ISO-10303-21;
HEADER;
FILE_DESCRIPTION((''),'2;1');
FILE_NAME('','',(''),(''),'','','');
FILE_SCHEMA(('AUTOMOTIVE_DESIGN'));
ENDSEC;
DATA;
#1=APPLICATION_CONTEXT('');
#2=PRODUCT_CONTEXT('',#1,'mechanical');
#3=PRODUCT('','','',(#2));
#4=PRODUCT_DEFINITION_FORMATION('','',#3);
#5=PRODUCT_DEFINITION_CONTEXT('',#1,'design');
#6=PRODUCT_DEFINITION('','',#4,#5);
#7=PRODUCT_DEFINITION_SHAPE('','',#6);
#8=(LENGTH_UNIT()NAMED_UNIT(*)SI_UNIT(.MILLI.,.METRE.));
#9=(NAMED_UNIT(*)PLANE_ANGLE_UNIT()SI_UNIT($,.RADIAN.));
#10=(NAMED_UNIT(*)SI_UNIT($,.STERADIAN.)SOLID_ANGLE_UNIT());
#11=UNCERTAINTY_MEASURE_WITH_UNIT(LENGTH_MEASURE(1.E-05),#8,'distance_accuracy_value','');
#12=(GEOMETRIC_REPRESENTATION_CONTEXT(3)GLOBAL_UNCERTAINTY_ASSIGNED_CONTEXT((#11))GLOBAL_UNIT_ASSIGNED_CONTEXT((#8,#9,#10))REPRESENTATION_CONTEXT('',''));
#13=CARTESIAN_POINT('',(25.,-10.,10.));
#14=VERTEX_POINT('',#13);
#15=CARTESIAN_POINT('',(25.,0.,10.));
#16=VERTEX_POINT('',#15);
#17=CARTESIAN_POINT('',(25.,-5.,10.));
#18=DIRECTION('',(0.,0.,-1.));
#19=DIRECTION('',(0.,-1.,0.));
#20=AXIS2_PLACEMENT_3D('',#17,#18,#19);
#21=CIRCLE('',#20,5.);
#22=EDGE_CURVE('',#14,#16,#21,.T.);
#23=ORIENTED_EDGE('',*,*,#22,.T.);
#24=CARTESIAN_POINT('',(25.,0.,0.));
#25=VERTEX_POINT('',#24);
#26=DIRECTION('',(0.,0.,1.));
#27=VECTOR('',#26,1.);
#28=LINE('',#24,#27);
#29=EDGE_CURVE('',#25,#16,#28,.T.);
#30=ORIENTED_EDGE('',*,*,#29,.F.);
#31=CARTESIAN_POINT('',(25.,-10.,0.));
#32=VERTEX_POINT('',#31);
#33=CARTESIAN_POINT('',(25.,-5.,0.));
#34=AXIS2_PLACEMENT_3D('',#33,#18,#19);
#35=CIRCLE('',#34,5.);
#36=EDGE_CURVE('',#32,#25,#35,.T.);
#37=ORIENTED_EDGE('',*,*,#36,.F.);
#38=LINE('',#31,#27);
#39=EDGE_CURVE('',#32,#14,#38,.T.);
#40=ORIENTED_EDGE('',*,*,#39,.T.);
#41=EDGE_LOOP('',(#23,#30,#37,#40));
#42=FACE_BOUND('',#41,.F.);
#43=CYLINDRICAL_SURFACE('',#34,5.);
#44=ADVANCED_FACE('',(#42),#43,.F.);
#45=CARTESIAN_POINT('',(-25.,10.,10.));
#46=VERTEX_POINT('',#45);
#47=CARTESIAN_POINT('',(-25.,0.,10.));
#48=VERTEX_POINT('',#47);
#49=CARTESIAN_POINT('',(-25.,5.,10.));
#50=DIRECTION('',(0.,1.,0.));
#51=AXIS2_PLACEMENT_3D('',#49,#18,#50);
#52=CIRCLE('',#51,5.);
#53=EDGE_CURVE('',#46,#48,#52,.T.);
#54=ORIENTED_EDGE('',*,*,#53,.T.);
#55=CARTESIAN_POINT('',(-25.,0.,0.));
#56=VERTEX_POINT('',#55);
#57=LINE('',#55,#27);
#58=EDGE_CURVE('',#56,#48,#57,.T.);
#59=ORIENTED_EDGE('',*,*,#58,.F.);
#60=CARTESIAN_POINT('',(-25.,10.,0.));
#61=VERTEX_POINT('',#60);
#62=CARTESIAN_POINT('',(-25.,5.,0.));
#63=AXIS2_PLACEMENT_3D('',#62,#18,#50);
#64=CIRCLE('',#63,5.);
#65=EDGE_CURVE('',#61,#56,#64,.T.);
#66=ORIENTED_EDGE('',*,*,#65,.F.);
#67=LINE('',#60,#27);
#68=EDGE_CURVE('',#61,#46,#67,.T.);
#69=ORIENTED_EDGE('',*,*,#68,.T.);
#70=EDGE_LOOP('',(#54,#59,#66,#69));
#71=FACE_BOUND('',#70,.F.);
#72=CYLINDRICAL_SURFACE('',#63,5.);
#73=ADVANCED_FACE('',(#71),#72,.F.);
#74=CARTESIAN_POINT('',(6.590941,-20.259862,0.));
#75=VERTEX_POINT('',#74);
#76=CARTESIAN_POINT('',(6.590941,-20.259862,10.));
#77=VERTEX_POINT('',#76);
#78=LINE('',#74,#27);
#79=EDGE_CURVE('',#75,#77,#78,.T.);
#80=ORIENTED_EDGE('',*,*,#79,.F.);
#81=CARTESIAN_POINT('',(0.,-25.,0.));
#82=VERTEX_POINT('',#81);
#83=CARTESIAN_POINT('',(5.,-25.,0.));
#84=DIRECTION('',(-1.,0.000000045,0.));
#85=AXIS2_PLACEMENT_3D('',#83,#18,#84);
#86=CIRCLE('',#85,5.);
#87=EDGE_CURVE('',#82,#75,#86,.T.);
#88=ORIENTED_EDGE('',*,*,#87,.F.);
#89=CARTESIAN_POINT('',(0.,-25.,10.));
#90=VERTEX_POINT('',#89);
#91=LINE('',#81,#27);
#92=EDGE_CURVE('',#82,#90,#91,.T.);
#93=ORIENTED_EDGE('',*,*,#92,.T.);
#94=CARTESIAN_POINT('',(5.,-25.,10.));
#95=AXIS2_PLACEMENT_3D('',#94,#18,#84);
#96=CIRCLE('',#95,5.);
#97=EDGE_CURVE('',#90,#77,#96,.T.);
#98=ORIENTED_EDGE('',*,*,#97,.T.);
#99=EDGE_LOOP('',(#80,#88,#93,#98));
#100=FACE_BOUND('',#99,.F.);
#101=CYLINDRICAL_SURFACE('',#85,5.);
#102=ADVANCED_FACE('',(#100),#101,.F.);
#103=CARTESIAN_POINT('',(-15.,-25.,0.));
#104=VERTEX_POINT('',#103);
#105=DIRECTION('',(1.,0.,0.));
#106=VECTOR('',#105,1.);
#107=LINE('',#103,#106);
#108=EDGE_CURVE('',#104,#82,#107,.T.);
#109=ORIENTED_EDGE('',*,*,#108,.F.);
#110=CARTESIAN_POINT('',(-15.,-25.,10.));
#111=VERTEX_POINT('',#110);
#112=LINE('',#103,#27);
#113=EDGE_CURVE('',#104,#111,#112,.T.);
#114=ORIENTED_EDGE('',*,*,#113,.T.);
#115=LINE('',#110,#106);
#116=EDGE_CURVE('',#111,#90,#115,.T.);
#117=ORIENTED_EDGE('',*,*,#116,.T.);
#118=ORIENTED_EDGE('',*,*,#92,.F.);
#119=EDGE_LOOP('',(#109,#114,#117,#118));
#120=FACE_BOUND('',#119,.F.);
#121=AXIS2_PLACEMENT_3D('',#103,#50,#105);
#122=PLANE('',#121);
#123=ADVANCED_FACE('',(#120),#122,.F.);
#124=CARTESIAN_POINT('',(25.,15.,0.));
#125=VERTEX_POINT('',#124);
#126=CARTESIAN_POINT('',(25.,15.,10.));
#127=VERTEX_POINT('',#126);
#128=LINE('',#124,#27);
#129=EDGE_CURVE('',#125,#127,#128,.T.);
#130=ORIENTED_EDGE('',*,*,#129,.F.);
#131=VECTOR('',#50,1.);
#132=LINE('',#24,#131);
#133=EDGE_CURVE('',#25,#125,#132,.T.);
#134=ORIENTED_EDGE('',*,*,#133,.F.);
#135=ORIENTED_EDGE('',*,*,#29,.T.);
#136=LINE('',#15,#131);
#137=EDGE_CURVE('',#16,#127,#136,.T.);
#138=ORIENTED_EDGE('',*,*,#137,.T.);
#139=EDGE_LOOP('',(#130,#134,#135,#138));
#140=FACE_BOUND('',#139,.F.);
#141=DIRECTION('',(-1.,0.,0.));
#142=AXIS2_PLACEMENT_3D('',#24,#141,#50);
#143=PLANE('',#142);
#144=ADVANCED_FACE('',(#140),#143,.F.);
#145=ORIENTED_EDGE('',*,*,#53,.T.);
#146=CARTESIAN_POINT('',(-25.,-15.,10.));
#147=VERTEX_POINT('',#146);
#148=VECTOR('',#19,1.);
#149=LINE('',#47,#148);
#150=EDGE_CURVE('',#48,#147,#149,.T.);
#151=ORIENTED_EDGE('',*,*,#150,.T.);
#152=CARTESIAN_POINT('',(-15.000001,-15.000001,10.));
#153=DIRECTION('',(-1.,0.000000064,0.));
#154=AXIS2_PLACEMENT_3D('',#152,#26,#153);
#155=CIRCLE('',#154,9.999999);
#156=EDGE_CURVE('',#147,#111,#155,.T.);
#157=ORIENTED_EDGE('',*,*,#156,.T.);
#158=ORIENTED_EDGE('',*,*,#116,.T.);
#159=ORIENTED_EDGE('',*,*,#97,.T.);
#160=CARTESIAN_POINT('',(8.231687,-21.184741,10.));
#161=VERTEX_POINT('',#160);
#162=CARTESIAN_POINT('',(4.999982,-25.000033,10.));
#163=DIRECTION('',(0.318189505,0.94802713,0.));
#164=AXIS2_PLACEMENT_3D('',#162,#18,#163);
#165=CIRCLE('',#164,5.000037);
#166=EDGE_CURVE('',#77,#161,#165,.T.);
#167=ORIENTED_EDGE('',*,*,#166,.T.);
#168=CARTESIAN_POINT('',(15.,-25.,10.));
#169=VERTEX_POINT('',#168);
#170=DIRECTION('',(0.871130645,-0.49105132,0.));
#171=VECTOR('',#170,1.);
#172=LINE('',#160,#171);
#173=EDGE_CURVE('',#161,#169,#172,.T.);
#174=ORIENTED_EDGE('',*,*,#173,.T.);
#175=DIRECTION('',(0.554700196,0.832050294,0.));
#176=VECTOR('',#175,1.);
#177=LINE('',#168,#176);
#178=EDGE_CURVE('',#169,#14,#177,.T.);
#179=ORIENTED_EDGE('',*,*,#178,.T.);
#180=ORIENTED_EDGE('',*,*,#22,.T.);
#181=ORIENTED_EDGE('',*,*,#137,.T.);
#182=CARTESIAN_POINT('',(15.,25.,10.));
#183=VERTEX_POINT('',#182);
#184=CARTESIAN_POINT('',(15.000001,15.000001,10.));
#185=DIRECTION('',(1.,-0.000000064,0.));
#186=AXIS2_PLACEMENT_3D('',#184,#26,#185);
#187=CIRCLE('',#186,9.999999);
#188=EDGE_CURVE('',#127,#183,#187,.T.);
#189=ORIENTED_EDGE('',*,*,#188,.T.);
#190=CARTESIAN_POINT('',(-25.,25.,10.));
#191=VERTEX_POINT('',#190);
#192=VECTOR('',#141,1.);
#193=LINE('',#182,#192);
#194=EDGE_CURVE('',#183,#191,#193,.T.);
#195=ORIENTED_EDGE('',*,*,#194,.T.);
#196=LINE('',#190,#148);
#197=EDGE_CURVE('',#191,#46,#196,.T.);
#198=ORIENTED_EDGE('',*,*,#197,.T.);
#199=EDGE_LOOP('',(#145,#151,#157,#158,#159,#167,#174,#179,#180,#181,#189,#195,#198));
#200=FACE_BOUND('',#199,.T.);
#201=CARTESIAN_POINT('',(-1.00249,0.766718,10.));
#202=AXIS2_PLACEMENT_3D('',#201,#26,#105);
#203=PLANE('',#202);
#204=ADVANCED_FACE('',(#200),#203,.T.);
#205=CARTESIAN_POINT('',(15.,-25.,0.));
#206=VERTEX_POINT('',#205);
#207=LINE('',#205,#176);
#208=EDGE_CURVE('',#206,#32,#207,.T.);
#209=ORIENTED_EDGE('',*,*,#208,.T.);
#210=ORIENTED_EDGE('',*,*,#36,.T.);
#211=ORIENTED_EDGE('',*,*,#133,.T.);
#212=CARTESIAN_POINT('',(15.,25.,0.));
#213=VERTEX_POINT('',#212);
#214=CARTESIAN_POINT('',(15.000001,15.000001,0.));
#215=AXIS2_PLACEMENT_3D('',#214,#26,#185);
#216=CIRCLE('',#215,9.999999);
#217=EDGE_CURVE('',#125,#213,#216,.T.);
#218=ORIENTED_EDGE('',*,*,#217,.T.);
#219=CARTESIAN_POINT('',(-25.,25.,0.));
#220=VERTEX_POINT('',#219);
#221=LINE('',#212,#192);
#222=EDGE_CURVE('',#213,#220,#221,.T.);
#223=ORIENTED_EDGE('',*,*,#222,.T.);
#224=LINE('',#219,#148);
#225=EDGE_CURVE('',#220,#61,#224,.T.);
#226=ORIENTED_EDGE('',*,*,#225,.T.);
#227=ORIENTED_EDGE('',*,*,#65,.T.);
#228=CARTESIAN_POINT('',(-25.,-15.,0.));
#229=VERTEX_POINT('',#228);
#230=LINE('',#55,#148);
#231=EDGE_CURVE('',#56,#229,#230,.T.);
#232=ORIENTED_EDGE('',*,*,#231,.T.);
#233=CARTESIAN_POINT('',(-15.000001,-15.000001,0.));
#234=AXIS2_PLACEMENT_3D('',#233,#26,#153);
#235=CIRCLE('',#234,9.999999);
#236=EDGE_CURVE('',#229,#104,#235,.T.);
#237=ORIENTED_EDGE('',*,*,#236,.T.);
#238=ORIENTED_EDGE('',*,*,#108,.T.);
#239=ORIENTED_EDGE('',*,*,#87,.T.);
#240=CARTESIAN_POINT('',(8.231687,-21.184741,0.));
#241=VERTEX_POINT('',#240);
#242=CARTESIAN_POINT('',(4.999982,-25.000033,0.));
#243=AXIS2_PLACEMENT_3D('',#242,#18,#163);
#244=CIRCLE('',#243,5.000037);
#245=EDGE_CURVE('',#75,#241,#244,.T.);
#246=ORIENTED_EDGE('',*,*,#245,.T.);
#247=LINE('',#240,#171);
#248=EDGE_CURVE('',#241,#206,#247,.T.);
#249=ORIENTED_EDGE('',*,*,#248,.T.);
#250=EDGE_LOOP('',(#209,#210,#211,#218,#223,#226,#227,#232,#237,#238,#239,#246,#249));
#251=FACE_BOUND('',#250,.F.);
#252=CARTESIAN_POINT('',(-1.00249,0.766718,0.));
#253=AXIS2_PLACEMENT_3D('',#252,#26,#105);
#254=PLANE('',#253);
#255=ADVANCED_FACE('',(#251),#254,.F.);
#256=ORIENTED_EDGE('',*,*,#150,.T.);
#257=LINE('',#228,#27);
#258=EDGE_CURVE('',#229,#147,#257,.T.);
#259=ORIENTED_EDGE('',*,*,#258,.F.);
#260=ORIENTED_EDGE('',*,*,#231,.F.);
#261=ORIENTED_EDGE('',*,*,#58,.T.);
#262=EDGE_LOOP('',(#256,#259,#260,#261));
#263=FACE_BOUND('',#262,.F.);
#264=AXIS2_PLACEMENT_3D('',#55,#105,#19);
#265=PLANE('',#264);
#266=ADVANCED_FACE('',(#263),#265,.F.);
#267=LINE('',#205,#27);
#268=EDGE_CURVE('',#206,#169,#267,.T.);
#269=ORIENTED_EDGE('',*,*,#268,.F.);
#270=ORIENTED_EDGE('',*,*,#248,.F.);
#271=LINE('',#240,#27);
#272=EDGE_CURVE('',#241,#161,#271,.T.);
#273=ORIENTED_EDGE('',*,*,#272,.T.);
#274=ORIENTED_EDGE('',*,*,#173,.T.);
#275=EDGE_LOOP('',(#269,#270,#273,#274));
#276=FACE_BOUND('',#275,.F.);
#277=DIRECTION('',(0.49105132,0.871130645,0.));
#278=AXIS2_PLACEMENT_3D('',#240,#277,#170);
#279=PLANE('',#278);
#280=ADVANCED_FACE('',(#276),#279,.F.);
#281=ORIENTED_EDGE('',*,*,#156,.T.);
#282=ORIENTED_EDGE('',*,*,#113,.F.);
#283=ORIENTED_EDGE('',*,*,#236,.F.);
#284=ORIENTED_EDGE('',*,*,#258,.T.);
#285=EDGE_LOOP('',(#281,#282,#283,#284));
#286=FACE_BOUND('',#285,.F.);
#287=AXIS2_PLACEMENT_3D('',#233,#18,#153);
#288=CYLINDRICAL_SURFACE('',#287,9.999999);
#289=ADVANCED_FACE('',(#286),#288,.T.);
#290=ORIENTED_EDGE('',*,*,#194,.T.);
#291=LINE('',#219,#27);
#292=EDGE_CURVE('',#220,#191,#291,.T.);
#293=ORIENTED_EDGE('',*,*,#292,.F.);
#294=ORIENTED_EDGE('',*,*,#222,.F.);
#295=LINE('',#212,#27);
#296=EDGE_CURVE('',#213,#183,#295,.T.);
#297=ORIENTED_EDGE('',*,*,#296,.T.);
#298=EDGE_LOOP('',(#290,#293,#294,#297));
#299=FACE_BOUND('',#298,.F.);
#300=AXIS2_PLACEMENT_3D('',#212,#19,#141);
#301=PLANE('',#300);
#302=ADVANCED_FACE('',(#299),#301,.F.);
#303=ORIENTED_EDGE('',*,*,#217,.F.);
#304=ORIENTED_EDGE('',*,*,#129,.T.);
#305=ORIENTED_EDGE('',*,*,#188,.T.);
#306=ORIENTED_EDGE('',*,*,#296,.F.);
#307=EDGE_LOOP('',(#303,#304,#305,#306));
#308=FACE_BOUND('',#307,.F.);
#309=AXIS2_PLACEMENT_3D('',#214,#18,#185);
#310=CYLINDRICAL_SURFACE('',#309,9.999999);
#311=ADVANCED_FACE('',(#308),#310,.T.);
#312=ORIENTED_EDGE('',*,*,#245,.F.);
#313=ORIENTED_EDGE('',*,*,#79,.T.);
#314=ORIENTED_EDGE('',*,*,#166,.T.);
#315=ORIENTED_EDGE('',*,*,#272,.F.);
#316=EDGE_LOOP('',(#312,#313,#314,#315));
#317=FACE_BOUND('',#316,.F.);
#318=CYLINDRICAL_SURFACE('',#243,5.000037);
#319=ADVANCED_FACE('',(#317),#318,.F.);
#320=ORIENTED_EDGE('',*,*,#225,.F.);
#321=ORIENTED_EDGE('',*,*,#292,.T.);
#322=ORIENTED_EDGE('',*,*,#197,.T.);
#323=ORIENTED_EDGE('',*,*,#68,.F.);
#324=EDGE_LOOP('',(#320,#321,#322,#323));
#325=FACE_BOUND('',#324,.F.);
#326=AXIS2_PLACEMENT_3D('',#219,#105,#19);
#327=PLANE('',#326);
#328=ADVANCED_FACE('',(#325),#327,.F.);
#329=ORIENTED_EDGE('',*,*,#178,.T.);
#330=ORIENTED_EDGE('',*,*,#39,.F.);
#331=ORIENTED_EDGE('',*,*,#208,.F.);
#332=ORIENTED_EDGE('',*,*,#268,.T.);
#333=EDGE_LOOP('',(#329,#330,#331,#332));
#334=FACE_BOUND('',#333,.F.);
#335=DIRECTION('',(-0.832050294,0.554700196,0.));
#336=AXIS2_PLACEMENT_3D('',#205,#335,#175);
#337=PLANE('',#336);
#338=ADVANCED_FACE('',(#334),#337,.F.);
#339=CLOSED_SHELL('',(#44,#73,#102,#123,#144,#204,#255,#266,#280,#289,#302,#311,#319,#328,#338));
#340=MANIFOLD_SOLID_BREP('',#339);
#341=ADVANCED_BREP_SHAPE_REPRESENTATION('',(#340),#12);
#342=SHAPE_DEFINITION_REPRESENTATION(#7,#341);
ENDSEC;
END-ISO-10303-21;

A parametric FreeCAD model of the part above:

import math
import FreeCAD as App
import Part
import Sketcher
Q = App.Units.Quantity

doc = App.newDocument("Part")
body = doc.addObject("PartDesign::Body", "Body")

sketch1 = doc.addObject("Sketcher::SketchObject", "Sketch")
body.addObject(sketch1)
sketch1.AttachmentSupport = (doc.XY_Plane, [""])
sketch1.MapMode = "FlatFace"
sketch1.addGeometry(Part.ArcOfCircle(Part.Circle(App.Vector(15, 15, 0), App.Vector(0, 0, 1), 10), math.radians(0), math.radians(90)), False)
sketch1.addGeometry(Part.LineSegment(App.Vector(15, 25, 0), App.Vector(-25, 25, 0)), False)
sketch1.addGeometry(Part.LineSegment(App.Vector(-25, 25, 0), App.Vector(-25, 10, 0)), False)
sketch1.addGeometry(Part.ArcOfCircle(Part.Circle(App.Vector(-25, 5, 0), App.Vector(0, 0, 1), 5), math.radians(-90), math.radians(90)), False)
sketch1.addGeometry(Part.LineSegment(App.Vector(-25, 0, 0), App.Vector(-25, -15, 0)), False)
sketch1.addGeometry(Part.ArcOfCircle(Part.Circle(App.Vector(-15, -15, 0), App.Vector(0, 0, 1), 10), math.radians(180), math.radians(270)), False)
sketch1.addGeometry(Part.LineSegment(App.Vector(-15, -25, 0), App.Vector(0, -25, 0)), False)
sketch1.addGeometry(Part.ArcOfCircle(Part.Circle(App.Vector(5, -25, 0), App.Vector(0, 0, 1), 5), math.radians(71), math.radians(180)), False)
sketch1.addGeometry(Part.ArcOfCircle(Part.Circle(App.Vector(5, -25, 0), App.Vector(0, 0, 1), 5), math.radians(50), math.radians(71)), False)
sketch1.addGeometry(Part.LineSegment(App.Vector(8.2, -21.2, 0), App.Vector(15, -25, 0)), False)
sketch1.addGeometry(Part.LineSegment(App.Vector(15, -25, 0), App.Vector(25, -10, 0)), False)
sketch1.addGeometry(Part.ArcOfCircle(Part.Circle(App.Vector(25, -5, 0), App.Vector(0, 0, 1), 5), math.radians(90), math.radians(270)), False)
sketch1.addGeometry(Part.LineSegment(App.Vector(25, 0, 0), App.Vector(25, 15, 0)), False)
sketch1.addConstraint(Sketcher.Constraint("Tangent", 0, 2, 1, 1))
sketch1.addConstraint(Sketcher.Constraint("Coincident", 1, 2, 2, 1))
sketch1.addConstraint(Sketcher.Constraint("Coincident", 2, 2, 3, 2))
sketch1.addConstraint(Sketcher.Constraint("Coincident", 3, 1, 4, 1))
sketch1.addConstraint(Sketcher.Constraint("Tangent", 4, 2, 5, 1))
sketch1.addConstraint(Sketcher.Constraint("Tangent", 5, 2, 6, 1))
sketch1.addConstraint(Sketcher.Constraint("Coincident", 6, 2, 7, 2))
sketch1.addConstraint(Sketcher.Constraint("Tangent", 7, 1, 8, 2))
sketch1.addConstraint(Sketcher.Constraint("Coincident", 8, 1, 9, 1))
sketch1.addConstraint(Sketcher.Constraint("Coincident", 9, 2, 10, 1))
sketch1.addConstraint(Sketcher.Constraint("Coincident", 10, 2, 11, 2))
sketch1.addConstraint(Sketcher.Constraint("Coincident", 11, 1, 12, 1))
sketch1.addConstraint(Sketcher.Constraint("Tangent", 12, 2, 0, 1))
sketch1.addConstraint(Sketcher.Constraint("Horizontal", 1))
sketch1.addConstraint(Sketcher.Constraint("Vertical", 2))
sketch1.addConstraint(Sketcher.Constraint("Vertical", 4))
sketch1.addConstraint(Sketcher.Constraint("Horizontal", 6))
sketch1.addConstraint(Sketcher.Constraint("Vertical", 12))
sketch1.addConstraint(Sketcher.Constraint("Equal", 0, 5))
sketch1.addConstraint(Sketcher.Constraint("Equal", 3, 7))
sketch1.addConstraint(Sketcher.Constraint("Equal", 7, 11))
sketch1.addConstraint(Sketcher.Constraint("Symmetric", 0, 3, 5, 3, -1, 1))
sketch1.addConstraint(Sketcher.Constraint("Symmetric", 3, 3, 11, 3, -1, 1))
sketch1.addConstraint(Sketcher.Constraint("Symmetric", 5, 2, 9, 2, -2))
sketch1.addConstraint(Sketcher.Constraint("PointOnObject", 3, 1, -1))
sketch1.addConstraint(Sketcher.Constraint("PointOnObject", 6, 2, -2))
sketch1.addConstraint(Sketcher.Constraint("Horizontal", 7, 3, 5, 2))
sketch1.addConstraint(Sketcher.Constraint("Vertical", 3, 3, 1, 2))
sketch1.addConstraint(Sketcher.Constraint("Vertical", 2, 2, 3, 1))
sketch1.addConstraint(Sketcher.Constraint("Vertical", 11, 3, 10, 2))
sketch1.addConstraint(Sketcher.Constraint("Equal", 6, 2))
sketch1.addConstraint(Sketcher.Constraint("Equal", 2, 4))
sketch1.addConstraint(Sketcher.Constraint("Radius", 0, Q("9.999999 mm")))
sketch1.addConstraint(Sketcher.Constraint("DistanceX", 1, 2, 1, 1, Q("40 mm")))
sketch1.addConstraint(Sketcher.Constraint("Radius", 8, Q("5.000037 mm")))
sketch1.addConstraint(Sketcher.Constraint("DistanceX", -1, 1, 7, 1, Q("6.590941 mm")))
sketch1.addConstraint(Sketcher.Constraint("DistanceY", 8, 1, -1, 1, Q("21.184741 mm")))
pad1 = doc.addObject("PartDesign::Pad", "Pad")
body.addObject(pad1)
pad1.Profile = sketch1
pad1.Length = 10

doc.recompute()
